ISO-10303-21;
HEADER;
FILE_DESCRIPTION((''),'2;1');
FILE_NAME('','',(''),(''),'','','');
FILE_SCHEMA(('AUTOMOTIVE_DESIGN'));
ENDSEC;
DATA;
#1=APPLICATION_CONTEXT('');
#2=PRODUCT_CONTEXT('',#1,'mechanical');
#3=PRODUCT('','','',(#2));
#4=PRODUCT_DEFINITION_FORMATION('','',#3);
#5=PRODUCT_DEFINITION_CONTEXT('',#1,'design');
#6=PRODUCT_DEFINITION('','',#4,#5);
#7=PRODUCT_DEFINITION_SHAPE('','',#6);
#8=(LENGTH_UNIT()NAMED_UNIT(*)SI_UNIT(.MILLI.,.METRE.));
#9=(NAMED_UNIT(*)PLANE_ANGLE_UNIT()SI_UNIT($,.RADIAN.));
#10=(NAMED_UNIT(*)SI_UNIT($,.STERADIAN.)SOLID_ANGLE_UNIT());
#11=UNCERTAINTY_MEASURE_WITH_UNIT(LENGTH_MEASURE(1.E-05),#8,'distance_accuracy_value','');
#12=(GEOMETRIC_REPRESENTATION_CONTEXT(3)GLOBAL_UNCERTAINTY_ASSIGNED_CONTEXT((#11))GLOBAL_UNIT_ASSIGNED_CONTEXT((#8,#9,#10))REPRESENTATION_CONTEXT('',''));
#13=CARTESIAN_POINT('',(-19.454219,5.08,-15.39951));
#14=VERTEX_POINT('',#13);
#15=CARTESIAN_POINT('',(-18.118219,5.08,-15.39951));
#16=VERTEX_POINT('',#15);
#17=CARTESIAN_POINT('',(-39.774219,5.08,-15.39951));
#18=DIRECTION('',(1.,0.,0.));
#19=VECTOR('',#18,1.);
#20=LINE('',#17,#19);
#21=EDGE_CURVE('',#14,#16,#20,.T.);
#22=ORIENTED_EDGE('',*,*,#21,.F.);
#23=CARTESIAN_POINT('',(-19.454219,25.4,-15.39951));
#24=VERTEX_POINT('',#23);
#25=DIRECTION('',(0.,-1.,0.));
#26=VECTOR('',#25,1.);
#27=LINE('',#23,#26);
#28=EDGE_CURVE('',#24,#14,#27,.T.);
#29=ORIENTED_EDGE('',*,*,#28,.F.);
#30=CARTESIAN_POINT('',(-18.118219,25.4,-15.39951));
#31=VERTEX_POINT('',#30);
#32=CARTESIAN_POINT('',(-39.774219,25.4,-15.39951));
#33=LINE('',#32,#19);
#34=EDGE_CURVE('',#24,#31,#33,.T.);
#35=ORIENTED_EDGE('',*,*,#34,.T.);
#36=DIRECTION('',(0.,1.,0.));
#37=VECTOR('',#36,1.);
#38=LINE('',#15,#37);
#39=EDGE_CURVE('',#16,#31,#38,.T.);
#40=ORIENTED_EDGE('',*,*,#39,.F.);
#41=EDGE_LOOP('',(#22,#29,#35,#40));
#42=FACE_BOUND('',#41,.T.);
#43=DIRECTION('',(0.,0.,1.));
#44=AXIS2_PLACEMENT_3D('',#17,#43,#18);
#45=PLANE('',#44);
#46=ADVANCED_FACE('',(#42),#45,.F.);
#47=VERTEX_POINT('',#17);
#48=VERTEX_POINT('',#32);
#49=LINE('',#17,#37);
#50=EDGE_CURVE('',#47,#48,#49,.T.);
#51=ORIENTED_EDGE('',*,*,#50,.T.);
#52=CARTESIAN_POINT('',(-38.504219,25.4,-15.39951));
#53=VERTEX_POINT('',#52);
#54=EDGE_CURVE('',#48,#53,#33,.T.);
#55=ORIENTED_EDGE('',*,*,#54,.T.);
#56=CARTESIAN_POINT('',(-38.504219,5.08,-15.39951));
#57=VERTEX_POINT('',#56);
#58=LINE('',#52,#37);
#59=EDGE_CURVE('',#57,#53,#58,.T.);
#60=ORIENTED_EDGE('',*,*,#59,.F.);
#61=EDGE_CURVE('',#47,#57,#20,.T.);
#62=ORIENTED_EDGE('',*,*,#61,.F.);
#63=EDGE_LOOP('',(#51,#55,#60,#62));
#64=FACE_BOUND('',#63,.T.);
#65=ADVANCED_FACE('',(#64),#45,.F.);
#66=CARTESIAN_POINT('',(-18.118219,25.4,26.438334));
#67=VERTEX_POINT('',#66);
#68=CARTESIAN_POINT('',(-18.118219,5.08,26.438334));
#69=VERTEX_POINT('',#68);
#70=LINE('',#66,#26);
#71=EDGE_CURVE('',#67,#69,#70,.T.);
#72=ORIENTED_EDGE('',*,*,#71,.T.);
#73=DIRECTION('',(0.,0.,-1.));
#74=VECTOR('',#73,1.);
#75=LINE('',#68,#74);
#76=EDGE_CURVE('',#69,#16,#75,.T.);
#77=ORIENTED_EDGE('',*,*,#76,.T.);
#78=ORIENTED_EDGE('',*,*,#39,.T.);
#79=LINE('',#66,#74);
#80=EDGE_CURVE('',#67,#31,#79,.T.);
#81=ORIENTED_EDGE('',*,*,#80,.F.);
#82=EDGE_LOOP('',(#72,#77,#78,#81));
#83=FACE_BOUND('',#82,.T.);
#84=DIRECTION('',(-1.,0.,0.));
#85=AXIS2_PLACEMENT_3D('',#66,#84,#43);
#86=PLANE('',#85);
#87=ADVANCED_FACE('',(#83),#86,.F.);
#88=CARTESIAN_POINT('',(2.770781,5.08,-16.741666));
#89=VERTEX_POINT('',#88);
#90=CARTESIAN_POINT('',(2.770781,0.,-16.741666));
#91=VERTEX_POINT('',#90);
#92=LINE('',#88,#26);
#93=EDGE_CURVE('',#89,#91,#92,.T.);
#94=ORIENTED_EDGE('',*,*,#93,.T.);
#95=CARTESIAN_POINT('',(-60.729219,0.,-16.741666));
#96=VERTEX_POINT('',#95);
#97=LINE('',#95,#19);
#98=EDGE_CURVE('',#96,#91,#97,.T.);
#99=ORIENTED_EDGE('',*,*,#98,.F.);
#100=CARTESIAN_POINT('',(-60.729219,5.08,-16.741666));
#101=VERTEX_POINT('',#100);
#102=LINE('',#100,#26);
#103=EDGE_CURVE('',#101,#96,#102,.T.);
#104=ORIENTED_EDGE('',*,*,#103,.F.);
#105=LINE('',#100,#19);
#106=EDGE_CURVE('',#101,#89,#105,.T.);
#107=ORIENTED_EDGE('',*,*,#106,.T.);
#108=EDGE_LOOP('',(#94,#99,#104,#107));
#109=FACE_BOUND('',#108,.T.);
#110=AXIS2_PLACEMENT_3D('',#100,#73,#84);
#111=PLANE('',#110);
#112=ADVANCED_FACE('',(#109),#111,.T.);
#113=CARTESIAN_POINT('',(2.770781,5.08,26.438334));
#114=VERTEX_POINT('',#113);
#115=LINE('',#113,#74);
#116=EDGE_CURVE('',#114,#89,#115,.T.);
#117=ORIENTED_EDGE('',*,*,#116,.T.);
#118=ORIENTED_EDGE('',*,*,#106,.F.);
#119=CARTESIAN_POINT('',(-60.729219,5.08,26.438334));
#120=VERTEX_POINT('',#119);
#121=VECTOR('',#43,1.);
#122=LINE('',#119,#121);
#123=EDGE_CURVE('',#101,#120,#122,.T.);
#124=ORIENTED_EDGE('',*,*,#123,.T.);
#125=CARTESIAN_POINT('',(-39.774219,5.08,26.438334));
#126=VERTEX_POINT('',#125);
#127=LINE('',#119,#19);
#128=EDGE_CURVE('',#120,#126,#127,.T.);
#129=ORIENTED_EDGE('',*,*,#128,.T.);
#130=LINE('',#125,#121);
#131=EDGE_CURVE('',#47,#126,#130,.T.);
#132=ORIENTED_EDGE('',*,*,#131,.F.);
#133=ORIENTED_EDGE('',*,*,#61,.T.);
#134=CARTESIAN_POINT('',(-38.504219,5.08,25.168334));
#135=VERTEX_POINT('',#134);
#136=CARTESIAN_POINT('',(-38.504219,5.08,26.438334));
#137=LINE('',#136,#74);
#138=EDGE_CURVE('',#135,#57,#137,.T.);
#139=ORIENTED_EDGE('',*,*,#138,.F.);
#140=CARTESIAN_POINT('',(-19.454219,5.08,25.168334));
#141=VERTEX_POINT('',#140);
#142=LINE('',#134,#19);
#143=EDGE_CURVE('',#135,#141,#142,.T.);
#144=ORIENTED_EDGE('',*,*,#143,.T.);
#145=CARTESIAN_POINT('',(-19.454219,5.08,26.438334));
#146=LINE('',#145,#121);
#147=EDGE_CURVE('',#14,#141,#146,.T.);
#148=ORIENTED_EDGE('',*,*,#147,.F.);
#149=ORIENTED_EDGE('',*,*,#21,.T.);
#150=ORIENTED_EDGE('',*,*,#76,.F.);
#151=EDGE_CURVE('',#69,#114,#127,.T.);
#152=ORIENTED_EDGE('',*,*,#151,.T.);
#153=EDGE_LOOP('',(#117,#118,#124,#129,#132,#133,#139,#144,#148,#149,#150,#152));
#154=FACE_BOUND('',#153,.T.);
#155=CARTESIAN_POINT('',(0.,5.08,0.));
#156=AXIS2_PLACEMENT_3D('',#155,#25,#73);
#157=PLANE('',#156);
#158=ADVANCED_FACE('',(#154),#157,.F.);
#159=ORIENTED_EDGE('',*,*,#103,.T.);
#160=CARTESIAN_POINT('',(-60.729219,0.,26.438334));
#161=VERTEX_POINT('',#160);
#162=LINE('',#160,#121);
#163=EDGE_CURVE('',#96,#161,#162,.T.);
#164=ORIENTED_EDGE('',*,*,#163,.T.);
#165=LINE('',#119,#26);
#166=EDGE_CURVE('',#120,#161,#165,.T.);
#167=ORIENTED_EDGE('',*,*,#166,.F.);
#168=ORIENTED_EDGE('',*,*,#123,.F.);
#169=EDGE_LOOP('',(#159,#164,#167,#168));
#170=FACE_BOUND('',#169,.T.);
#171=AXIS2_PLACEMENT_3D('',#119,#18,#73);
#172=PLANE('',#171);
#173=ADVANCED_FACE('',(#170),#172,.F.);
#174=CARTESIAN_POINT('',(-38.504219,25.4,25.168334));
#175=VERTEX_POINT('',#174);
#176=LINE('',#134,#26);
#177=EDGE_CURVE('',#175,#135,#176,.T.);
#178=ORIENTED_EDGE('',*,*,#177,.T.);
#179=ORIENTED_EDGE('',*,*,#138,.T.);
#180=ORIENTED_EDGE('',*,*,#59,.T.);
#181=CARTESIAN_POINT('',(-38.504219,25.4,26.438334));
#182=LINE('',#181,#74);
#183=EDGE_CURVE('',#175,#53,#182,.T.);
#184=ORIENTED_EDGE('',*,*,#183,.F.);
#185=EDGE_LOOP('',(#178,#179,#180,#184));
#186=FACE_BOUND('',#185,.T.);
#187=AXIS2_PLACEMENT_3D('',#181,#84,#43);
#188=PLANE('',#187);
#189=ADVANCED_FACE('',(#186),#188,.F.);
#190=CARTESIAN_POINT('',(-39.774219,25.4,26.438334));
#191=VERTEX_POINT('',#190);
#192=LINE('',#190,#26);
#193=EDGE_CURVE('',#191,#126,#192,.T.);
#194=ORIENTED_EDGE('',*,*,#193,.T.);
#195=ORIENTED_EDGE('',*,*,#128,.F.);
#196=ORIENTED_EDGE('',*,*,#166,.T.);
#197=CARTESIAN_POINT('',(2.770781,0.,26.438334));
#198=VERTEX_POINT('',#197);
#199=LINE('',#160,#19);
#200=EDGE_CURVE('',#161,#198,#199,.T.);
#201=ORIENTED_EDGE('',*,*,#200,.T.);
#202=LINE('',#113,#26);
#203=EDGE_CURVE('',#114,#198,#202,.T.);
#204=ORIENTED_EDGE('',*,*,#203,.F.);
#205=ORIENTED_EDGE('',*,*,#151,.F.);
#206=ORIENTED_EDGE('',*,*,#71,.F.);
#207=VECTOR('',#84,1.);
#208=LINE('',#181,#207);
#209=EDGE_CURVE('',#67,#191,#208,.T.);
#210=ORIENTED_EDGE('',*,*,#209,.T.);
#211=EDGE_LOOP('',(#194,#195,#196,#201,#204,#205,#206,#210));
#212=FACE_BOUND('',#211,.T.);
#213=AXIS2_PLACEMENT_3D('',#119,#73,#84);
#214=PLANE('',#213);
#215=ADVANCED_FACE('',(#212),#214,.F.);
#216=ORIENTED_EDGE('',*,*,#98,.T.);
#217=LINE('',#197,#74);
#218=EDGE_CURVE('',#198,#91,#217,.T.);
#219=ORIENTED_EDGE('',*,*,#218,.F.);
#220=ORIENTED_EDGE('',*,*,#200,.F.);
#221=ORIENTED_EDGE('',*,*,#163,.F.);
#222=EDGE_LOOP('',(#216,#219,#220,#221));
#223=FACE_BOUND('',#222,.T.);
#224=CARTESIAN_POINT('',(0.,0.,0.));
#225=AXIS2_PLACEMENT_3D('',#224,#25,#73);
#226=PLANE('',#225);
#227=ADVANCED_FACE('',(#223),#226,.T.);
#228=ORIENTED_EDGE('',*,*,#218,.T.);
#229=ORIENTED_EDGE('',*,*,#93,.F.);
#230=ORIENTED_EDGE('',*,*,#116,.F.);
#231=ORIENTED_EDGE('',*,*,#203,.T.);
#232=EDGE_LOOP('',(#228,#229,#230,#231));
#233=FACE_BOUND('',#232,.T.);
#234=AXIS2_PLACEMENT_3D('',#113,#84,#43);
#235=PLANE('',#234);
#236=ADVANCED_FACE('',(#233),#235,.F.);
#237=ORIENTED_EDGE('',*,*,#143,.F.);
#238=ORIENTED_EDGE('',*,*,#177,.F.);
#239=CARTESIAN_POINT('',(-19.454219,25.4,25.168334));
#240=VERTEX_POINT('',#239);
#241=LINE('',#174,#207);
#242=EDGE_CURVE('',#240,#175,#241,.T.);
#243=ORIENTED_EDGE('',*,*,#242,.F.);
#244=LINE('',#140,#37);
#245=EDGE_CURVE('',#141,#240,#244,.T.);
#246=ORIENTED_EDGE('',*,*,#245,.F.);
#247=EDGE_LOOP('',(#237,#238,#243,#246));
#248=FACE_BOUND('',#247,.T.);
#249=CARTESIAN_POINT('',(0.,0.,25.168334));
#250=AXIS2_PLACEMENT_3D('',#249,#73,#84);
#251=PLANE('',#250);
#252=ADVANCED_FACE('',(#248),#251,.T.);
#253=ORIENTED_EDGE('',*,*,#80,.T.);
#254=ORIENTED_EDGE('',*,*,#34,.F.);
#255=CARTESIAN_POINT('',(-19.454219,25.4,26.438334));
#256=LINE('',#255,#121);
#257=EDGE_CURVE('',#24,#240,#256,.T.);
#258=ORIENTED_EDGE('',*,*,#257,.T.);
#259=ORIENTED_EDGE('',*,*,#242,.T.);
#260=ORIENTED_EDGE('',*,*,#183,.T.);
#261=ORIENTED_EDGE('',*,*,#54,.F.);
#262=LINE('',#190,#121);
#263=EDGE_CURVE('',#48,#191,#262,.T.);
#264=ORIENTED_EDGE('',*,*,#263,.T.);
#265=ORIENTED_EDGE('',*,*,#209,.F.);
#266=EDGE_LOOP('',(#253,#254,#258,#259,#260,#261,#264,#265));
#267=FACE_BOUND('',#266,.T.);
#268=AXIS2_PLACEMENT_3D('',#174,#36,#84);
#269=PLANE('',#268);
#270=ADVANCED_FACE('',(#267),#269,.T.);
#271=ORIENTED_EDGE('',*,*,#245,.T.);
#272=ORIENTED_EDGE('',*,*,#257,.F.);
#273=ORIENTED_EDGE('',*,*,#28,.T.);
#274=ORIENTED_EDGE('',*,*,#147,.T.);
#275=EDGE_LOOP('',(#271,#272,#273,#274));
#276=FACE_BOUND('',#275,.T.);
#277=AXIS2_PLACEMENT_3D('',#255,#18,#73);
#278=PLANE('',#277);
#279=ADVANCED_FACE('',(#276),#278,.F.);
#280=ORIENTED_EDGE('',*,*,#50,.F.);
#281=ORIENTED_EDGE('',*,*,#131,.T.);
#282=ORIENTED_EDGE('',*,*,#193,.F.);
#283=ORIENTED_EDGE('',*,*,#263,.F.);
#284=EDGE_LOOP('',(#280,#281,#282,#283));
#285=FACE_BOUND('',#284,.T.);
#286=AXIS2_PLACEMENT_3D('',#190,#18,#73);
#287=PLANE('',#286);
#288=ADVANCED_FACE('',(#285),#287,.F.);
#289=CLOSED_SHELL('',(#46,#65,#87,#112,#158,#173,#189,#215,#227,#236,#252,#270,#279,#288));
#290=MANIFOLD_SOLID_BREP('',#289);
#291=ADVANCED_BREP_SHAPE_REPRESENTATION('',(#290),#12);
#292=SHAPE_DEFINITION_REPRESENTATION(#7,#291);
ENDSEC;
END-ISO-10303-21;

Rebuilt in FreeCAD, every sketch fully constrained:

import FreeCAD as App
import Part
import Sketcher

V = App.Vector
Q = App.Units.Quantity


def add_polygon(sketch, points):
    """Adds a closed chain of lines whose ends are joined by coincident constraints."""
    first, n = sketch.GeometryCount, len(points)
    for a, b in zip(points, points[1:] + points[:1]):
        sketch.addGeometry(Part.LineSegment(App.Vector(*a, 0), App.Vector(*b, 0)), False)
    for i in range(n):
        sketch.addConstraint(Sketcher.Constraint("Coincident", first + i, 2, first + (i + 1) % n, 1))

doc = App.newDocument("Part")
body = doc.addObject("PartDesign::Body", "Body")

sketch1 = body.newObject("Sketcher::SketchObject", "Sketch")
sketch1.AttachmentSupport = (doc.getObject("XZ_Plane"), [""])
sketch1.MapMode = "FlatFace"
add_polygon(sketch1, [(-61, 5), (-61, 26), (3, 26), (3, 5)])
sketch1.addConstraint([
    Sketcher.Constraint("Vertical", 0),
    Sketcher.Constraint("Horizontal", 1),
    Sketcher.Constraint("Vertical", 2),
    Sketcher.Constraint("Horizontal", 3),
    Sketcher.Constraint("DistanceX", 1, 1, 1, 2, Q("2.5 in")),
    Sketcher.Constraint("DistanceY", 0, 1, 0, 2, Q("0.85 in")),
    Sketcher.Constraint("DistanceX", 0, 2, -1, 1, Q("60.729219 mm")),
    Sketcher.Constraint("DistanceY", -1, 1, 0, 2, Q("26.438334 mm")),
])
pad1 = body.newObject("PartDesign::Pad", "Pad")
pad1.Profile = sketch1
pad1.Length = Q("0.2 in")
pad1.Reversed = True

sketch2 = body.newObject("Sketcher::SketchObject", "Sketch001")
sketch2.AttachmentSupport = (doc.getObject("XY_Plane"), [""])
sketch2.MapMode = "FlatFace"
sketch2.AttachmentOffset = App.Placement(V(0, 0, 26.438334), App.Rotation())
add_polygon(sketch2, [(-39, 25), (-39, 5), (-19, 5), (-19, 25)])
sketch2.addConstraint([
    Sketcher.Constraint("Vertical", 0),
    Sketcher.Constraint("Horizontal", 1),
    Sketcher.Constraint("Vertical", 2),
    Sketcher.Constraint("Horizontal", 3),
    Sketcher.Constraint("DistanceY", 0, 2, 0, 1, Q("0.8 in")),
    Sketcher.Constraint("DistanceY", -1, 1, 2, 2, Q("1 in")),
    Sketcher.Constraint("DistanceX", 1, 1, 1, 2, Q("0.75 in")),
    Sketcher.Constraint("DistanceX", 0, 2, -1, 1, Q("38.504219 mm")),
])
pad2 = body.newObject("PartDesign::Pad", "Pad001")
pad2.Profile = sketch2
pad2.Length = Q("0.05 in")
pad2.Reversed = True

sketch3 = body.newObject("Sketcher::SketchObject", "Sketch002")
sketch3.AttachmentSupport = (doc.getObject("XZ_Plane"), [""])
sketch3.MapMode = "FlatFace"
sketch3.AttachmentOffset = App.Placement(V(0, 0, -0.2 * 25.4), App.Rotation())
add_polygon(sketch3, [(-39.8, 4.8), (-39.8, 26.4), (-38.5, 26.4), (-38.5, 4.8)])
sketch3.addConstraint([
    Sketcher.Constraint("Vertical", 0),
    Sketcher.Constraint("Horizontal", 1),
    Sketcher.Constraint("Vertical", 2),
    Sketcher.Constraint("Horizontal", 3),
    Sketcher.Constraint("DistanceX", 1, 1, 1, 2, Q("0.05 in")),
    Sketcher.Constraint("DistanceY", 0, 1, 0, 2, Q("0.85 in")),
    Sketcher.Constraint("DistanceX", 0, 2, -1, 1, Q("39.774219 mm")),
    Sketcher.Constraint("DistanceY", -1, 1, 0, 2, Q("26.438334 mm")),
])
pad3 = body.newObject("PartDesign::Pad", "Pad002")
pad3.Profile = sketch3
pad3.Length = Q("0.8 in")
pad3.Reversed = True
doc.recompute()

datumplane = body.newObject("PartDesign::Plane", "DatumPlane")
datumplane.AttachmentSupport = (doc.getObject("XY_Plane"), [""])
datumplane.MapMode = "FlatFace"
datumplane.AttachmentOffset = App.Placement(V(0, 0, 4.848334), App.Rotation())
mirrored = body.newObject("PartDesign::Mirrored", "Mirrored")
mirrored.Originals = [pad1, pad2, pad3]
mirrored.MirrorPlane = (datumplane, [""])
body.Tip = mirrored

sketch4 = body.newObject("Sketcher::SketchObject", "Sketch003")
sketch4.AttachmentSupport = (doc.getObject("XZ_Plane"), [""])
sketch4.MapMode = "FlatFace"
sketch4.AttachmentOffset = App.Placement(V(0, 0, -0.2 * 25.4), App.Rotation())
add_polygon(sketch4, [(-19.5, -16.7), (-19.5, 26.4), (-18.1, 26.4), (-18.1, -16.7)])
sketch4.addConstraint([
    Sketcher.Constraint("Vertical", 0),
    Sketcher.Constraint("Horizontal", 1),
    Sketcher.Constraint("Vertical", 2),
    Sketcher.Constraint("Horizontal", 3),
    Sketcher.Constraint("DistanceX", 1, 1, 1, 2, Q("1.336001 mm")),
    Sketcher.Constraint("DistanceY", 0, 1, 0, 2, Q("43.136682 mm")),
    Sketcher.Constraint("DistanceX", 0, 2, -1, 1, Q("19.454219 mm")),
    Sketcher.Constraint("DistanceY", -1, 1, 0, 2, Q("26.438334 mm")),
])
pad4 = body.newObject("PartDesign::Pad", "Pad003")
pad4.Profile = sketch4
pad4.Length = Q("0.8 in")
pad4.Reversed = True

sketch5 = body.newObject("Sketcher::SketchObject", "Sketch004")
sketch5.AttachmentSupport = (doc.getObject("XY_Plane"), [""])
sketch5.MapMode = "FlatFace"
sketch5.AttachmentOffset = App.Placement(V(0, 0, -16.741666), App.Rotation())
add_polygon(sketch5, [(-25, 25), (-25, 5), (-35, 5), (-35, 25)])
sketch5.addConstraint([
    Sketcher.Constraint("Vertical", 0),
    Sketcher.Constraint("Horizontal", 1),
    Sketcher.Constraint("Vertical", 2),
    Sketcher.Constraint("Horizontal", 3),
    Sketcher.Constraint("DistanceX", 1, 2, 1, 1, Q("0.4 in")),
    Sketcher.Constraint("DistanceY", 0, 2, 0, 1, Q("20.215193 mm")),
    Sketcher.Constraint("DistanceY", -1, 1, 0, 2, Q("5.171919 mm")),
    Sketcher.Constraint("DistanceX", 0, 2, -1, 1, Q("24.533388 mm")),
])
pocket1 = body.newObject("PartDesign::Pocket", "Pocket")
pocket1.Profile = sketch5
pocket1.Length = Q("0.05 in")
pocket1.Reversed = True

sketch6 = body.newObject("Sketcher::SketchObject", "Sketch005")
sketch6.AttachmentSupport = (doc.getObject("XZ_Plane"), [""])
sketch6.MapMode = "FlatFace"
sketch6.AttachmentOffset = App.Placement(V(0, 0, -1 * 25.4), App.Rotation())
add_polygon(sketch6, [(-39.8, -16.7), (-39.8, -15.4), (-18.1, -15.4), (-18.1, -16.7)])
sketch6.addConstraint([
    Sketcher.Constraint("Vertical", 0),
    Sketcher.Constraint("Horizontal", 1),
    Sketcher.Constraint("Vertical", 2),
    Sketcher.Constraint("Horizontal", 3),
    Sketcher.Constraint("DistanceX", 1, 1, 1, 2, Q("21.656001 mm")),
    Sketcher.Constraint("DistanceY", 0, 1, 0, 2, Q("1.342157 mm")),
    Sketcher.Constraint("DistanceX", 0, 2, -1, 1, Q("39.774219 mm")),
    Sketcher.Constraint("DistanceY", 0, 2, -1, 1, Q("15.39951 mm")),
])
pocket2 = body.newObject("PartDesign::Pocket", "Pocket001")
pocket2.Profile = sketch6
pocket2.Length = Q("0.8 in")
pocket2.Reversed = True

doc.recompute()
